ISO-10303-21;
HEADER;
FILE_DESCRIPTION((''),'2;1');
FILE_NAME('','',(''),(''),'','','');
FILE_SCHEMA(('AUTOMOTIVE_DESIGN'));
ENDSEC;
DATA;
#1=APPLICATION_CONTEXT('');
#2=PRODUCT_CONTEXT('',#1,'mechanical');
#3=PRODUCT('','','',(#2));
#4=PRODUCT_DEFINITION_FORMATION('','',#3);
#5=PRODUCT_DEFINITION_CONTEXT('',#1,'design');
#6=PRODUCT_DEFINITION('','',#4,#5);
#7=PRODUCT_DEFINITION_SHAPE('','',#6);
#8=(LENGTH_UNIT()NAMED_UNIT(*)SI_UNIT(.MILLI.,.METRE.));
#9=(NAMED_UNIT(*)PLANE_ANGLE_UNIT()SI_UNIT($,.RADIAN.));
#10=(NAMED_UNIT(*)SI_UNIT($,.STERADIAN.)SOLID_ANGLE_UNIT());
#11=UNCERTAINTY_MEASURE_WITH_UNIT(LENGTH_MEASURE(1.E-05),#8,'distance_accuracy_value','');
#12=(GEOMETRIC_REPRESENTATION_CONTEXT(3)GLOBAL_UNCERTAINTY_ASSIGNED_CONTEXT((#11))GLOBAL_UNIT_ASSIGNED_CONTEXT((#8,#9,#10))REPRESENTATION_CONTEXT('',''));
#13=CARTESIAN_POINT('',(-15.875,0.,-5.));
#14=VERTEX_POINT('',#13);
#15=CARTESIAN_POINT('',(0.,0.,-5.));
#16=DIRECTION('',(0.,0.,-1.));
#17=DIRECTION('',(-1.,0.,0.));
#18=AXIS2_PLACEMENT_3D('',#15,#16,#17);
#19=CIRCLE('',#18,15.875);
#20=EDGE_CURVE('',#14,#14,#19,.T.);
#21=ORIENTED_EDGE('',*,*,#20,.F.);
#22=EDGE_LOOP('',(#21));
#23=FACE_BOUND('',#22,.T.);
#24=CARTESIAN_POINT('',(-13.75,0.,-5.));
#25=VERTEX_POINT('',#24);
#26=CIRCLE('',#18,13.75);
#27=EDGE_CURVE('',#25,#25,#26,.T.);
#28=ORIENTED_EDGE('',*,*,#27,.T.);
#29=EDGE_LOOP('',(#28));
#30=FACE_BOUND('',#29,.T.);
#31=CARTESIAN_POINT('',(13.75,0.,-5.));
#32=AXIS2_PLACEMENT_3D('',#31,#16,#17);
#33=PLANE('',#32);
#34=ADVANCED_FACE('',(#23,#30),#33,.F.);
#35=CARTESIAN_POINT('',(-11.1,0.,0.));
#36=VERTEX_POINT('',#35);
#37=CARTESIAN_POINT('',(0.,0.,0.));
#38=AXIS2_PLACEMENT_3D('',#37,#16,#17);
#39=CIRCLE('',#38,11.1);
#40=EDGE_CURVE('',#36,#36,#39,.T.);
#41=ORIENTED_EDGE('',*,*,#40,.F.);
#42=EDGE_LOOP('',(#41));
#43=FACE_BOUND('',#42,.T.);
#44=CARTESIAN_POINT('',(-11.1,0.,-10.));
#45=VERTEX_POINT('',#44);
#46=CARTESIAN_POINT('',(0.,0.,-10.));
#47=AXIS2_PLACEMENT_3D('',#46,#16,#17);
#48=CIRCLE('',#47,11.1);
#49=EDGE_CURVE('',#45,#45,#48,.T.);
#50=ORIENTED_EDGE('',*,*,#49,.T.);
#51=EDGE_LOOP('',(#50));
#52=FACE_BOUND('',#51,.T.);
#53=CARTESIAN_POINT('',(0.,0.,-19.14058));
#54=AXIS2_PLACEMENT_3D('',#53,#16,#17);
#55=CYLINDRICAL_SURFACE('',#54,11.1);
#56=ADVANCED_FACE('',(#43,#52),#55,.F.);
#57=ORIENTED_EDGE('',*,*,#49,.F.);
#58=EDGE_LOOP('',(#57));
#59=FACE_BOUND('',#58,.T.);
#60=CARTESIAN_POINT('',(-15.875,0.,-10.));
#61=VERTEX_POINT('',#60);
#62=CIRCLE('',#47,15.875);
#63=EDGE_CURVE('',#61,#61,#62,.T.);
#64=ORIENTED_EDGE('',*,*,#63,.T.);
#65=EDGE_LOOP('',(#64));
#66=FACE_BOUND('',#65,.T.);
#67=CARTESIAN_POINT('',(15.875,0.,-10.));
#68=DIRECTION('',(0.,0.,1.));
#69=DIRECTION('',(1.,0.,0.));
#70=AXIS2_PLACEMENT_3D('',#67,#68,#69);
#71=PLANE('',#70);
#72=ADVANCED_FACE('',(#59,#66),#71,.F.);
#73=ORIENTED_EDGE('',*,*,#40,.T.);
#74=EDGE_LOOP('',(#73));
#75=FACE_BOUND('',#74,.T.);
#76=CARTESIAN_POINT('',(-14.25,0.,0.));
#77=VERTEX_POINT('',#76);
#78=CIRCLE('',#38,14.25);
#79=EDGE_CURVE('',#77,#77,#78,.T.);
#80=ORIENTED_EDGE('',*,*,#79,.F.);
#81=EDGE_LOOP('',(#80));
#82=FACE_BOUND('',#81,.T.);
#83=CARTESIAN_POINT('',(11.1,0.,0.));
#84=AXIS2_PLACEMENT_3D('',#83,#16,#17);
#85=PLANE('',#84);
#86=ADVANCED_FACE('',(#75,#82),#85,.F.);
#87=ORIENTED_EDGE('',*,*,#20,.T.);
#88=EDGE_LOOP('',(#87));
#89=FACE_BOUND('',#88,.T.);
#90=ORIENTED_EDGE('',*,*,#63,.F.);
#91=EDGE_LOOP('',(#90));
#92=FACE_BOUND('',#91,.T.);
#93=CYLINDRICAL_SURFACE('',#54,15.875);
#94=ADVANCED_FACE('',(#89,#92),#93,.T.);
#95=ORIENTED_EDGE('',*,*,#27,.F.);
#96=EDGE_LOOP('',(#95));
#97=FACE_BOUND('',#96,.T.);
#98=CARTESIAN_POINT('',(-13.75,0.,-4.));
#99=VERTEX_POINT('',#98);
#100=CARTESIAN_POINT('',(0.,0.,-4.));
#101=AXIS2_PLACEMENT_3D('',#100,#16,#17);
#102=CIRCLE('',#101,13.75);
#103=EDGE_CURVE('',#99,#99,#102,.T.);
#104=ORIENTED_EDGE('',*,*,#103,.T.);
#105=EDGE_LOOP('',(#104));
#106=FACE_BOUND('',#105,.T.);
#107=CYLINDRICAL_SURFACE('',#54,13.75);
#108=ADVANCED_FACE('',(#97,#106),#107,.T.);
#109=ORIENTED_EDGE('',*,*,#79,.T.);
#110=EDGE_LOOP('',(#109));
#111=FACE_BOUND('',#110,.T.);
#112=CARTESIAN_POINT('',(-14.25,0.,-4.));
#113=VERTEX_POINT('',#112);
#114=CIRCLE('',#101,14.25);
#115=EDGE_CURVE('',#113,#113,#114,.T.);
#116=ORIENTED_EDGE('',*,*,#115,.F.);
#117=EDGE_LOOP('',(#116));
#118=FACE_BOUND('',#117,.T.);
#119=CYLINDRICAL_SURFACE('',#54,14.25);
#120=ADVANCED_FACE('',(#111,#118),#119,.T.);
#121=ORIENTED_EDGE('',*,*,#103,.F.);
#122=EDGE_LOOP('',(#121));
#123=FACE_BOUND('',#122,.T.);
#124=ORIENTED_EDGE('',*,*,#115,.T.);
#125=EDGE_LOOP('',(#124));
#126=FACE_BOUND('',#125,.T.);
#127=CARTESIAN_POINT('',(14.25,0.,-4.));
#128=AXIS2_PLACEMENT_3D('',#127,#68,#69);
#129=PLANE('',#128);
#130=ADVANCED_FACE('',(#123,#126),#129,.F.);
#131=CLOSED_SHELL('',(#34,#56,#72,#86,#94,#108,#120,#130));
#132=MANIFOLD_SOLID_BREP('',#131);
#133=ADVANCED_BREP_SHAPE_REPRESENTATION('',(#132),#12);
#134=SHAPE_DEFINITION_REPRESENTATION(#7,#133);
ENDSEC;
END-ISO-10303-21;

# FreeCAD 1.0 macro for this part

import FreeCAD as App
import Part
import Sketcher
from FreeCAD import Vector
Q = App.Units.Quantity

doc = App.newDocument("Part")
body = doc.addObject("PartDesign::Body", "Body")

# Sketch on XZ plane
sketch1 = doc.addObject("Sketcher::SketchObject", "Sketch")
body.addObject(sketch1)
sketch1.AttachmentSupport = (doc.XZ_Plane, [""])
sketch1.MapMode = "FlatFace"
sketch1.addGeometry([
    Part.LineSegment(Vector(11.1, -10, 0), Vector(11.1, 0, 0)),  # 0
    Part.LineSegment(Vector(11.1, 0, 0), Vector(14.2, 0, 0)),  # 1
    Part.LineSegment(Vector(14.2, 0, 0), Vector(14.2, -4, 0)),  # 2
    Part.LineSegment(Vector(14.2, -4, 0), Vector(13.8, -4, 0)),  # 3
    Part.LineSegment(Vector(13.8, -4, 0), Vector(13.8, -5, 0)),  # 4
    Part.LineSegment(Vector(13.8, -5, 0), Vector(15.9, -5, 0)),  # 5
    Part.LineSegment(Vector(15.9, -5, 0), Vector(15.9, -10, 0)),  # 6
    Part.LineSegment(Vector(15.9, -10, 0), Vector(11.1, -10, 0)),  # 7
], False)
sketch1.addConstraint([
    Sketcher.Constraint("Coincident", 0, 2, 1, 1),
    Sketcher.Constraint("Coincident", 1, 2, 2, 1),
    Sketcher.Constraint("Coincident", 2, 2, 3, 1),
    Sketcher.Constraint("Coincident", 3, 2, 4, 1),
    Sketcher.Constraint("Coincident", 4, 2, 5, 1),
    Sketcher.Constraint("Coincident", 5, 2, 6, 1),
    Sketcher.Constraint("Coincident", 6, 2, 7, 1),
    Sketcher.Constraint("Coincident", 7, 2, 0, 1),
    Sketcher.Constraint("Vertical", 0),
    Sketcher.Constraint("Horizontal", 1),
    Sketcher.Constraint("Vertical", 2),
    Sketcher.Constraint("Horizontal", 3),
    Sketcher.Constraint("Vertical", 4),
    Sketcher.Constraint("Horizontal", 5),
    Sketcher.Constraint("Vertical", 6),
    Sketcher.Constraint("Horizontal", 7),
    Sketcher.Constraint("PointOnObject", 0, 2, -1),
    Sketcher.Constraint("DistanceY", 0, 1, 0, 2, Q("10 mm")),
    Sketcher.Constraint("DistanceY", 2, 2, 2, 1, Q("4 mm")),
    Sketcher.Constraint("DistanceY", 4, 2, 4, 1, Q("1 mm")),
    Sketcher.Constraint("DistanceX", 3, 2, 3, 1, Q("0.5 mm")),
    Sketcher.Constraint("DistanceX", 1, 1, 1, 2, Q("3.15 mm")),
    Sketcher.Constraint("DistanceX", -1, 1, 0, 2, Q("11.1 mm")),
    Sketcher.Constraint("DistanceX", 5, 1, 5, 2, Q("2.125 mm")),
])
revolution = doc.addObject("PartDesign::Revolution", "Revolution")
body.addObject(revolution)
revolution.Profile = sketch1
revolution.ReferenceAxis = (sketch1, ["V_Axis"])
revolution.Angle = 360

doc.recompute()
